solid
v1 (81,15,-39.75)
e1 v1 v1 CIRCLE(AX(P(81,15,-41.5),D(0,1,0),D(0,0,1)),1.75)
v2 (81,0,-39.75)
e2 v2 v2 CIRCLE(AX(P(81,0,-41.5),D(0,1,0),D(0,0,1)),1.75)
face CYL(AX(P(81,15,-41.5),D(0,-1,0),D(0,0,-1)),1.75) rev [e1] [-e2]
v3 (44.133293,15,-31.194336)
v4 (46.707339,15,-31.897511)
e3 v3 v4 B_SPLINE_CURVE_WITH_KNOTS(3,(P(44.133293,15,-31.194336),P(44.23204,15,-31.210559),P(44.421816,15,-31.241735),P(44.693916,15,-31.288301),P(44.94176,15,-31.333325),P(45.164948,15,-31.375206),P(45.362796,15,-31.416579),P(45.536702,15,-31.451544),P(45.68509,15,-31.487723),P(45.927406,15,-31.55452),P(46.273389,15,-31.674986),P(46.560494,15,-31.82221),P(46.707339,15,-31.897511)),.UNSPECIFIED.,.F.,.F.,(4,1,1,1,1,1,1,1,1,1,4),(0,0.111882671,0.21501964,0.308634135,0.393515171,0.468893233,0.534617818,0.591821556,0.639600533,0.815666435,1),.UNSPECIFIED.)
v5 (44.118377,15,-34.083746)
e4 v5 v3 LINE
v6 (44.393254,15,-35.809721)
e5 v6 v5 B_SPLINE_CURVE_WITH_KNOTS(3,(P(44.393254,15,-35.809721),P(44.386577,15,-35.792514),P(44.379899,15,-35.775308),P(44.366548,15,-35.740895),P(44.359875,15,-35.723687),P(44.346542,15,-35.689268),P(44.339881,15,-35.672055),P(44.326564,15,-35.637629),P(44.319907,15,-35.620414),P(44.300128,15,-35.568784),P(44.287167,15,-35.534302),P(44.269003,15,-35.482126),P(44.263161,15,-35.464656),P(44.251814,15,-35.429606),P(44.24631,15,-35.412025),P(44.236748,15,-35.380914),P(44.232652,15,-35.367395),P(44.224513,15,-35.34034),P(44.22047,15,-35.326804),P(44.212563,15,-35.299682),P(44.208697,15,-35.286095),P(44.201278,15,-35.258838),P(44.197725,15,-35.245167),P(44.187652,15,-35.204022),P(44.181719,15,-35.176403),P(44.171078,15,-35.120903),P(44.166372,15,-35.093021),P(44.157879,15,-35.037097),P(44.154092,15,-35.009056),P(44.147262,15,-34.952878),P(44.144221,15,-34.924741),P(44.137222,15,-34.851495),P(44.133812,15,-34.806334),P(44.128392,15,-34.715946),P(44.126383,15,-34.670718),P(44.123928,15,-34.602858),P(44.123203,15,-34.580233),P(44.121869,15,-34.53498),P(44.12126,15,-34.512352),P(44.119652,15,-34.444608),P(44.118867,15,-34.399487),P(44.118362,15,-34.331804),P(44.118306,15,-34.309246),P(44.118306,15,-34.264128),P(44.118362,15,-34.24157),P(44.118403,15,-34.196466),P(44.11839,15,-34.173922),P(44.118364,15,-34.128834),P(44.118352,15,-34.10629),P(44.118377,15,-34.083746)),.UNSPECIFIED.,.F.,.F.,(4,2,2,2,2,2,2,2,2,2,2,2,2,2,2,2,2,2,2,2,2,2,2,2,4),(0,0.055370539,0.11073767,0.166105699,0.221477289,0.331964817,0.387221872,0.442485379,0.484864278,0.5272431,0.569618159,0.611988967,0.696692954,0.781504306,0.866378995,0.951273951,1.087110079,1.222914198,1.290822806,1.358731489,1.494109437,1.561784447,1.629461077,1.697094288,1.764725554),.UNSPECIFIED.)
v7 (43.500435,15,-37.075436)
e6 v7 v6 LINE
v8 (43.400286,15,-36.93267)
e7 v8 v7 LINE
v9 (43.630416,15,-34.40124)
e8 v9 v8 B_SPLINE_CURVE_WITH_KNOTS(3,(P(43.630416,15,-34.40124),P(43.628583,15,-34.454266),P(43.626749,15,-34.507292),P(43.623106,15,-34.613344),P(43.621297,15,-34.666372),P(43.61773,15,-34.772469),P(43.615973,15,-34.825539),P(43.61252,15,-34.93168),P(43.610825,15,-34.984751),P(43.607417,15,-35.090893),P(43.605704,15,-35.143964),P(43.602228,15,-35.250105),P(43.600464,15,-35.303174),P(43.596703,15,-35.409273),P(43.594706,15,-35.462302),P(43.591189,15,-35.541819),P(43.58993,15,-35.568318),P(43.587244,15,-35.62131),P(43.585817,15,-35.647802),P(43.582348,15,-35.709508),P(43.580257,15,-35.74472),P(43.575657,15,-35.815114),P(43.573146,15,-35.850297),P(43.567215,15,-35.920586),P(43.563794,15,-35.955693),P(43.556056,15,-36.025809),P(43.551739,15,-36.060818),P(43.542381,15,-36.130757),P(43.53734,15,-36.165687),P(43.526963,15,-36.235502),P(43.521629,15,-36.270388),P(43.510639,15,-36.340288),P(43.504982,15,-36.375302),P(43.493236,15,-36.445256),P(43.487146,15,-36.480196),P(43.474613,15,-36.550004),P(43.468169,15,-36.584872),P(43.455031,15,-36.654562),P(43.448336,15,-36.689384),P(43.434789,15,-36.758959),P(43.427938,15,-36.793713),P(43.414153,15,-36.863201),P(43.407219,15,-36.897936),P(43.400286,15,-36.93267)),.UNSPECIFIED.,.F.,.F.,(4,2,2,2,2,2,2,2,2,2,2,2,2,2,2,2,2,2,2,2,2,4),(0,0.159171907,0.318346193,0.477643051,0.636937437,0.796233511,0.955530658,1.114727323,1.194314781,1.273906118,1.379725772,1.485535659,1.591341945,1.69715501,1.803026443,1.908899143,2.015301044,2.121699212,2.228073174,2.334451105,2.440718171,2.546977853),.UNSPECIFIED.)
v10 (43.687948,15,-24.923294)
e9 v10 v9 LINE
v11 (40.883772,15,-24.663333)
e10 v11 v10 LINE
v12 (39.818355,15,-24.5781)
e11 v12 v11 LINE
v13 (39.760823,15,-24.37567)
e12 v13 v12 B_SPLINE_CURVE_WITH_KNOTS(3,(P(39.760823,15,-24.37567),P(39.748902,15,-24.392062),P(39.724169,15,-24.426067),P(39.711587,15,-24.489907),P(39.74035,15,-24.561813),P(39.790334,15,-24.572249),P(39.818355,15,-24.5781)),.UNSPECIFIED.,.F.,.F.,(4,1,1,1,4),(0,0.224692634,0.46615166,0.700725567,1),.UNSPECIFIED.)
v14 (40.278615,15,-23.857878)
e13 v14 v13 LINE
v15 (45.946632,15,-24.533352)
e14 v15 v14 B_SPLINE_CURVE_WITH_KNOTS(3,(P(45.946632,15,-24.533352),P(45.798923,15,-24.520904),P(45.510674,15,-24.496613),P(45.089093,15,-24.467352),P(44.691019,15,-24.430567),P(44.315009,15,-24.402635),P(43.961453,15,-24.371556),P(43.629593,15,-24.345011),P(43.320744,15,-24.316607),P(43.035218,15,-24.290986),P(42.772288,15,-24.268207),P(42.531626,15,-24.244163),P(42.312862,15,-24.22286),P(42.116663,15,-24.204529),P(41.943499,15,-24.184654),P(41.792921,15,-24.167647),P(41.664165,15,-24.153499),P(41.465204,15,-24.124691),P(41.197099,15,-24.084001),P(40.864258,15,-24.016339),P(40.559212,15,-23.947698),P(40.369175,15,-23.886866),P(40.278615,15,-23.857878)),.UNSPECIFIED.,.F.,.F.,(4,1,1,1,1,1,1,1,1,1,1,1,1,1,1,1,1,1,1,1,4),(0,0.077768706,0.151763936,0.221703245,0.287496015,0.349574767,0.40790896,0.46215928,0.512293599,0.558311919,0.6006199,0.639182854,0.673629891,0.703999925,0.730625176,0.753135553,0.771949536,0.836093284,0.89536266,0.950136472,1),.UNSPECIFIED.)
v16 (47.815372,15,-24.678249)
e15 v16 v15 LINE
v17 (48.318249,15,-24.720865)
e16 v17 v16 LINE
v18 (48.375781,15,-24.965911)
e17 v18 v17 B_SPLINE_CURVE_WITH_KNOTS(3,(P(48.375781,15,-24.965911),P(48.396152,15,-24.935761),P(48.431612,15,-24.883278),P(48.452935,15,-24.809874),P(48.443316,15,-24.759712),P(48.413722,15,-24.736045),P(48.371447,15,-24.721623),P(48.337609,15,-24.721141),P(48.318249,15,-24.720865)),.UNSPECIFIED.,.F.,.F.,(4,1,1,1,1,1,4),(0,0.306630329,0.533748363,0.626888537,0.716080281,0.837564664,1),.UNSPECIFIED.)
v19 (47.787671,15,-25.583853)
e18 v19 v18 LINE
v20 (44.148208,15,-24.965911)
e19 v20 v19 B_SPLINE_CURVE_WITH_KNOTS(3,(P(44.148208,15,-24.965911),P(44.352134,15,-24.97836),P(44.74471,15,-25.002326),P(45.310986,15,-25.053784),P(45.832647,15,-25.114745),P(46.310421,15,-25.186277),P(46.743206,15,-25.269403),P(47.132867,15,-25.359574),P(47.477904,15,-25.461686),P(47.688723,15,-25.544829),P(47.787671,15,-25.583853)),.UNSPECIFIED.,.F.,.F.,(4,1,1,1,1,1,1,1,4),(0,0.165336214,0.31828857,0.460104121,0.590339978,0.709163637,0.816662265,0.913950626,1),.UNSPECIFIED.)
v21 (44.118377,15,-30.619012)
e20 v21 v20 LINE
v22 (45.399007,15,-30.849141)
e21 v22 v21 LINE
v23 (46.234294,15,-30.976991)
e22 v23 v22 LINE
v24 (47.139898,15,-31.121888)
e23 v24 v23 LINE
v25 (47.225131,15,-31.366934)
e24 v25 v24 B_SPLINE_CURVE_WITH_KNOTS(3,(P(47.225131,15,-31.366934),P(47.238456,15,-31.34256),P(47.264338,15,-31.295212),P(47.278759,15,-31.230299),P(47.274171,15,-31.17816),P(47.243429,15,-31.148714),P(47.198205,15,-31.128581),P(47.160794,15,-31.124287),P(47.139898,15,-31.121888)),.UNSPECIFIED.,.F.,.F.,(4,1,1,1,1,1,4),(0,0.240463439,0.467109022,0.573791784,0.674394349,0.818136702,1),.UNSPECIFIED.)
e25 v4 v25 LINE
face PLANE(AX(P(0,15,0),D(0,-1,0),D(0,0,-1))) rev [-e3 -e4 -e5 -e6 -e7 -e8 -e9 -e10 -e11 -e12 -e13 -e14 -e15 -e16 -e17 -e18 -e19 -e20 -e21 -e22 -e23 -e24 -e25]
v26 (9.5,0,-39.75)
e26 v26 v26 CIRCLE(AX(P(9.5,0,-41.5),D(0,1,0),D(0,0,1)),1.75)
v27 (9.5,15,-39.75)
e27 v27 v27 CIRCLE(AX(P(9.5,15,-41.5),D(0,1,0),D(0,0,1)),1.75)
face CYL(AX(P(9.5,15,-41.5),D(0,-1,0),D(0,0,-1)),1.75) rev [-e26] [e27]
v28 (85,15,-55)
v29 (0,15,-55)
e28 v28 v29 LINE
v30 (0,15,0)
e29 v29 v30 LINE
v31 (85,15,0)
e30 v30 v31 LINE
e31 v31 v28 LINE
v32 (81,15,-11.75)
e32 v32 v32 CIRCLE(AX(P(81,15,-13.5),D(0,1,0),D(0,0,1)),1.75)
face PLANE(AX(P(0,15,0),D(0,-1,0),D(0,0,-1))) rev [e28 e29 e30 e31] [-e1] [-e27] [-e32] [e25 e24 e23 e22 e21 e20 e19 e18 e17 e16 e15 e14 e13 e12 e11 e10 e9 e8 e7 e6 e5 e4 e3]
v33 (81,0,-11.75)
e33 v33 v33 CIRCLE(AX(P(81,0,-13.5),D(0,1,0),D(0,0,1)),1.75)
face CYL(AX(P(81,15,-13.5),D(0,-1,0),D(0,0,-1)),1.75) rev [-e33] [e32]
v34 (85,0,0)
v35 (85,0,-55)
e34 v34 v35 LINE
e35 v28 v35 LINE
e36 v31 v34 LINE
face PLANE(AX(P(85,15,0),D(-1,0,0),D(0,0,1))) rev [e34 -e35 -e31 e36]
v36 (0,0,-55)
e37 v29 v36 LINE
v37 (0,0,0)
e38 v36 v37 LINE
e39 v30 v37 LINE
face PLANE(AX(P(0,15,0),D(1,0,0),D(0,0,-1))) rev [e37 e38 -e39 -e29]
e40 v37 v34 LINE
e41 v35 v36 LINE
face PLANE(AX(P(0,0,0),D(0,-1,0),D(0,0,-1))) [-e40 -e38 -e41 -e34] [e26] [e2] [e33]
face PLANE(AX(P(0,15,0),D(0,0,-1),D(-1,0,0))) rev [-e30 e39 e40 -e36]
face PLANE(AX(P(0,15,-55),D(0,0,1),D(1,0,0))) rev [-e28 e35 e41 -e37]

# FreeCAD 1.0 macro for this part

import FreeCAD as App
import Part
import Sketcher
from FreeCAD import Vector
Q = App.Units.Quantity


def add_polygon(sketch, points):
    """Adds a closed chain of lines whose ends are joined by coincident constraints."""
    first, n = sketch.GeometryCount, len(points)
    for a, b in zip(points, points[1:] + points[:1]):
        sketch.addGeometry(Part.LineSegment(App.Vector(*a, 0), App.Vector(*b, 0)), False)
    for i in range(n):
        sketch.addConstraint(Sketcher.Constraint("Coincident", first + i, 2, first + (i + 1) % n, 1))

doc = App.newDocument("Part")
params = doc.addObject("Spreadsheet::Sheet", "Params")
for row, (alias, value) in enumerate([
    ("sketch1_diameter", "3.5 mm"),
    ("sketch1_width", "85 mm"),
    ("sketch1_height", "55 mm"),
    ("pad1_length", "15 mm"),
], start=1):
    params.set(f"A{row}", alias)
    params.set(f"B{row}", "=" + value)
    params.setAlias(f"B{row}", alias)

body = doc.addObject("PartDesign::Body", "Body")

# Sketch on XZ plane
sketch1 = body.newObject("Sketcher::SketchObject", "Sketch")
sketch1.AttachmentSupport = (doc.getObject("XZ_Plane"), [""])
sketch1.MapMode = "FlatFace"
add_polygon(sketch1, [(0, -55), (0, 0), (85, 0), (85, -55)])  # lines 0-3
sketch1.addGeometry(Part.Circle(Vector(81, -13.5, 0), Vector(0, 0, 1), 1.8), False)  # 4
sketch1.addGeometry(Part.Circle(Vector(9.5, -41.5, 0), Vector(0, 0, 1), 1.8), False)  # 5
sketch1.addGeometry(Part.Circle(Vector(81, -41.5, 0), Vector(0, 0, 1), 1.8), False)  # 6
sketch1.addConstraint([
    Sketcher.Constraint("Vertical", 0),
    Sketcher.Constraint("Horizontal", 1),
    Sketcher.Constraint("Vertical", 2),
    Sketcher.Constraint("Horizontal", 3),
    Sketcher.Constraint("Coincident", 0, 2, -1, 1),
    Sketcher.Constraint("Equal", 4, 5),
    Sketcher.Constraint("Equal", 5, 6),
    Sketcher.Constraint("Horizontal", 5, 3, 6, 3),
    Sketcher.Constraint("Vertical", 4, 3, 6, 3),
    Sketcher.Constraint("Diameter", 4, Q("3.5 mm")),
    Sketcher.Constraint("DistanceX", 1, 1, 1, 2, Q("85 mm")),
    Sketcher.Constraint("DistanceY", 0, 1, 0, 2, Q("55 mm")),
    Sketcher.Constraint("DistanceX", -1, 1, 4, 3, Q("81 mm")),
    Sketcher.Constraint("DistanceY", 5, 3, 4, 3, Q("28 mm")),
    Sketcher.Constraint("DistanceY", 4, 3, -1, 1, Q("13.5 mm")),
    Sketcher.Constraint("DistanceX", -1, 1, 5, 3, Q("9.5 mm")),
])
sketch1.setExpression("Constraints[13]", "Params.sketch1_diameter")
sketch1.setExpression("Constraints[14]", "Params.sketch1_width")
sketch1.setExpression("Constraints[15]", "Params.sketch1_height")
pad1 = body.newObject("PartDesign::Pad", "Pad")
pad1.Profile = sketch1
pad1.setExpression("Length", "Params.pad1_length")
pad1.Reversed = True

doc.recompute()
